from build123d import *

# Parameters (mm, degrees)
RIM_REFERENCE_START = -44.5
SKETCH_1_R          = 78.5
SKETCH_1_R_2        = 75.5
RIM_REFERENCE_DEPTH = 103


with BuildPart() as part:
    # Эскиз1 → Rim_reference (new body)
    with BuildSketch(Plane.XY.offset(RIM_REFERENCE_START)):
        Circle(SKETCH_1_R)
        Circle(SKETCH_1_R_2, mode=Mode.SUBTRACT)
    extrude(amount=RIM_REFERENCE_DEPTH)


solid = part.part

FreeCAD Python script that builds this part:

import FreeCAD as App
import Part
import Sketcher
from FreeCAD import Vector

doc = App.newDocument("Part")
body = doc.addObject("PartDesign::Body", "Body")

sketch1 = body.newObject("Sketcher::SketchObject", "Sketch")
sketch1.AttachmentSupport = (doc.getObject("XY_Plane"), [""])
sketch1.MapMode = "FlatFace"
sketch1.AttachmentOffset = App.Placement(Vector(0, 0, -44.5), App.Rotation())
sketch1.addGeometry(Part.Circle(Vector(0, 0, 0), Vector(0, 0, 1), 78), False)
sketch1.addGeometry(Part.Circle(Vector(0, 0, 0), Vector(0, 0, 1), 76), False)
sketch1.addConstraint(Sketcher.Constraint("Coincident", 0, 3, -1, 1))
sketch1.addConstraint(Sketcher.Constraint("Coincident", 1, 3, -1, 1))
sketch1.addConstraint(Sketcher.Constraint("Diameter", 0, 157.0))
sketch1.addConstraint(Sketcher.Constraint("Diameter", 1, 151.0))
pad1 = body.newObject("PartDesign::Pad", "Pad")
pad1.Profile = sketch1
pad1.Length = 103

doc.recompute()
